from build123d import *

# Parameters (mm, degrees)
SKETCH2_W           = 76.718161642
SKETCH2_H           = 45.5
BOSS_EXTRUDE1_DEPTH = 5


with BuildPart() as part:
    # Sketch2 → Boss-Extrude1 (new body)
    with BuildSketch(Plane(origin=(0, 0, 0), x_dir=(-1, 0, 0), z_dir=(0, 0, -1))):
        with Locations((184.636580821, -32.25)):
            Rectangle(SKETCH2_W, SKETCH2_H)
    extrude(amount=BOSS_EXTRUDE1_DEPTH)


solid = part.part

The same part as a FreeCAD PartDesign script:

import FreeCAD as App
import Part
import Sketcher
from FreeCAD import Vector
Q = App.Units.Quantity


def add_polygon(sketch, points):
    """Adds a closed chain of lines whose ends are joined by coincident constraints."""
    first, n = sketch.GeometryCount, len(points)
    for a, b in zip(points, points[1:] + points[:1]):
        sketch.addGeometry(Part.LineSegment(App.Vector(*a, 0), App.Vector(*b, 0)), False)
    for i in range(n):
        sketch.addConstraint(Sketcher.Constraint("Coincident", first + i, 2, first + (i + 1) % n, 1))

doc = App.newDocument("Part")
body = doc.addObject("PartDesign::Body", "Body")

# Sketch on XY plane
sketch1 = body.newObject("Sketcher::SketchObject", "Sketch")
sketch1.AttachmentSupport = (doc.getObject("XY_Plane"), [""])
sketch1.MapMode = "FlatFace"
add_polygon(sketch1, [(-146, -10), (-146, -55), (-223, -55), (-223, -10)])  # lines 0-3
sketch1.addConstraint(Sketcher.Constraint("Vertical", 0))
sketch1.addConstraint(Sketcher.Constraint("Horizontal", 1))
sketch1.addConstraint(Sketcher.Constraint("Vertical", 2))
sketch1.addConstraint(Sketcher.Constraint("Horizontal", 3))
sketch1.addConstraint(Sketcher.Constraint("DistanceY", 0, 2, 0, 1, Q("45.5 mm")))
sketch1.addConstraint(Sketcher.Constraint("DistanceY", 0, 2, -1, 1, Q("55 mm")))
sketch1.addConstraint(Sketcher.Constraint("DistanceX", 1, 2, 1, 1, Q("76.718162 mm")))
sketch1.addConstraint(Sketcher.Constraint("DistanceX", 0, 2, -1, 1, Q("146.2775 mm")))
pad1 = body.newObject("PartDesign::Pad", "Pad")
pad1.Profile = sketch1
pad1.Length = 5
pad1.Reversed = True

doc.recompute()
